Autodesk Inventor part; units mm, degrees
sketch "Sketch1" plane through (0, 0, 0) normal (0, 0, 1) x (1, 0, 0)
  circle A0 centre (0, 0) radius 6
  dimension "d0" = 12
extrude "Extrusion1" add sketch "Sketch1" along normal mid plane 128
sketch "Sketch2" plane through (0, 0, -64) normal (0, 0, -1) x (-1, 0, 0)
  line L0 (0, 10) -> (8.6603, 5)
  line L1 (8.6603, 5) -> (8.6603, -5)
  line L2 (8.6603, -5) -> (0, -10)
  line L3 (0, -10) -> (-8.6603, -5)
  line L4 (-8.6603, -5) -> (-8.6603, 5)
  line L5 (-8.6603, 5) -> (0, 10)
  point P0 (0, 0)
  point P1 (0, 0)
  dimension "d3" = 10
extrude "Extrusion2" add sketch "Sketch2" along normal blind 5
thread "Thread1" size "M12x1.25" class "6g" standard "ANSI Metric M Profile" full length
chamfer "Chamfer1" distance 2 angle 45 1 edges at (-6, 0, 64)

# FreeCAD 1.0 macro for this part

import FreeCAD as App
import Part
import Sketcher
from FreeCAD import Vector


def edges_at(feature, points):
    """Names of the edges that pass closest to the given points."""
    edges = feature.Shape.Edges
    near = lambda p: min(range(len(edges)), key=lambda i: edges[i].distToShape(Part.Vertex(*p))[0])
    return sorted({f"Edge{near(p) + 1}" for p in points})


def add_polygon(sketch, points):
    """Adds a closed chain of lines whose ends are joined by coincident constraints."""
    first, n = sketch.GeometryCount, len(points)
    for a, b in zip(points, points[1:] + points[:1]):
        sketch.addGeometry(Part.LineSegment(App.Vector(*a, 0), App.Vector(*b, 0)), False)
    for i in range(n):
        sketch.addConstraint(Sketcher.Constraint("Coincident", first + i, 2, first + (i + 1) % n, 1))

doc = App.newDocument("Part")
body = doc.addObject("PartDesign::Body", "Body")

# Sketch on XY plane
sketch1 = body.newObject("Sketcher::SketchObject", "Sketch")
sketch1.AttachmentSupport = (doc.getObject("XY_Plane"), [""])
sketch1.MapMode = "FlatFace"
sketch1.addGeometry(Part.Circle(Vector(0, 0, 0), Vector(0, 0, 1), 6), False)
sketch1.addConstraint([
    Sketcher.Constraint("Coincident", 0, 3, -1, 1),
    Sketcher.Constraint("Diameter", 0, 12.0),
])
pad1 = body.newObject("PartDesign::Pad", "Pad")
pad1.Profile = sketch1
pad1.Length = 128
pad1.Midplane = True

# Sketch on XY plane
sketch2 = body.newObject("Sketcher::SketchObject", "Sketch001")
sketch2.AttachmentSupport = (doc.getObject("XY_Plane"), [""])
sketch2.MapMode = "FlatFace"
sketch2.AttachmentOffset = App.Placement(Vector(0, 0, -64), App.Rotation())
add_polygon(sketch2, [(-9, 5), (0, 10), (9, 5), (9, -5), (0, -10), (-9, -5)])  # lines 0-5
sketch2.addConstraint([
    Sketcher.Constraint("Vertical", 2),
    Sketcher.Constraint("Vertical", 5),
    Sketcher.Constraint("Symmetric", 0, 2, 3, 2, -1, 1),
    Sketcher.Constraint("Symmetric", 1, 2, 4, 2, -1, 1),
    Sketcher.Constraint("PointOnObject", 0, 2, -2),
    Sketcher.Constraint("Parallel", 0, 3),
    Sketcher.Constraint("Horizontal", 2, 2, 4, 2),
    Sketcher.Constraint("DistanceY", 2, 2, 2, 1, 10.0),
    Sketcher.Constraint("Distance", 0, 10.0),
    Sketcher.Constraint("DistanceY", -1, 1, 0, 2, 10.0),
])
pad2 = body.newObject("PartDesign::Pad", "Pad001")
pad2.Profile = sketch2
pad2.Length = 5
pad2.Reversed = True
doc.recompute()

chamfer = body.newObject("PartDesign::Chamfer", "Chamfer")
chamfer.Base = (pad2, edges_at(pad2, [(-6, 0, 64)]))
chamfer.Size = 2

doc.recompute()
